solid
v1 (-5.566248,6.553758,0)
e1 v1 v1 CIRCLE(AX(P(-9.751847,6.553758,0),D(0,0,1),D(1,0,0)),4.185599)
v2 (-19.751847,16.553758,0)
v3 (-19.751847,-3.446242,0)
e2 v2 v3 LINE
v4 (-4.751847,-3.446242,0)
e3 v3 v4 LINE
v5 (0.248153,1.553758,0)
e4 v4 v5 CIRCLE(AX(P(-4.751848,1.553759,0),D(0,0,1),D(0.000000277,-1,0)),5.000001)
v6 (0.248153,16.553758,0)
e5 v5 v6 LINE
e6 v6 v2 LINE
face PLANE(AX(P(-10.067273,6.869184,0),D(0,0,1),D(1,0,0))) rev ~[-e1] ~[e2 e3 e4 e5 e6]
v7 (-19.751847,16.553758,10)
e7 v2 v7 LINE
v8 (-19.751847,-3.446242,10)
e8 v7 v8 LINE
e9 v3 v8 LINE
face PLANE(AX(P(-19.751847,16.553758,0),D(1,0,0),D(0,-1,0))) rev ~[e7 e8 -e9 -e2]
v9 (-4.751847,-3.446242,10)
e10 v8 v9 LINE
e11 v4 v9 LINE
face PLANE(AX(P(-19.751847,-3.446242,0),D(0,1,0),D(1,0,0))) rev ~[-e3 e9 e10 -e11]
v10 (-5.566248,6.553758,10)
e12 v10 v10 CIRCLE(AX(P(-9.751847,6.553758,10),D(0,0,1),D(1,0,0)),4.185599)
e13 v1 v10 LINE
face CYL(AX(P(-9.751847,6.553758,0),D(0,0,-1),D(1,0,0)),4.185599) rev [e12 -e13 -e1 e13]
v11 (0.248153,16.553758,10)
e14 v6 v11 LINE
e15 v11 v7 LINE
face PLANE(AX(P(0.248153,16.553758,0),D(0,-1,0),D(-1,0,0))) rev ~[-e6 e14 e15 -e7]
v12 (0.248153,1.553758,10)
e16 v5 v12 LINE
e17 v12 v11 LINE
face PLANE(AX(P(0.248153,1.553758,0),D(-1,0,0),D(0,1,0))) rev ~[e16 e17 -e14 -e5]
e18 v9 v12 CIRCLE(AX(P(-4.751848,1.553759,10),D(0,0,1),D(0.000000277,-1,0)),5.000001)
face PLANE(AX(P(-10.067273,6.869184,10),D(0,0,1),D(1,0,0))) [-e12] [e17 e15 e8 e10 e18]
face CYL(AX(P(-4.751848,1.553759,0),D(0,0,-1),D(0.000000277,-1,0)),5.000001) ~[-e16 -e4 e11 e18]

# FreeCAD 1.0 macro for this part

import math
import FreeCAD as App
import Part
import Sketcher

doc = App.newDocument("Part")
body = doc.addObject("PartDesign::Body", "Body")

sketch1 = doc.addObject("Sketcher::SketchObject", "Sketch")
body.addObject(sketch1)
sketch1.AttachmentSupport = (doc.XY_Plane, [""])
sketch1.MapMode = "FlatFace"
sketch1.addGeometry([
    Part.LineSegment(App.Vector(0.248153, 16.553758, 0), App.Vector(-19.751847, 16.553758, 0)),
    Part.LineSegment(App.Vector(-19.751847, 16.553758, 0), App.Vector(-19.751847, -3.446242, 0)),
    Part.LineSegment(App.Vector(-19.751847, -3.446242, 0), App.Vector(-4.751847, -3.446242, 0)),
    Part.ArcOfCircle(Part.Circle(App.Vector(-4.751848, 1.553759, 0), App.Vector(0, 0, 1), 5.000001), math.radians(-89.999984), math.radians(-0.000016)),
    Part.LineSegment(App.Vector(0.248153, 1.553758, 0), App.Vector(0.248153, 16.553758, 0)),
    Part.Circle(App.Vector(-9.751847, 6.553758, 0), App.Vector(0, 0, 1), 4.185599),
], False)
sketch1.addConstraint([
    Sketcher.Constraint("Coincident", 0, 2, 1, 1),
    Sketcher.Constraint("Coincident", 1, 2, 2, 1),
    Sketcher.Constraint("Tangent", 2, 2, 3, 1),
    Sketcher.Constraint("Tangent", 3, 2, 4, 1),
    Sketcher.Constraint("Coincident", 4, 2, 0, 1),
    Sketcher.Constraint("Horizontal", 0),
    Sketcher.Constraint("Vertical", 1),
    Sketcher.Constraint("Horizontal", 2),
    Sketcher.Constraint("Vertical", 4),
    Sketcher.Constraint("Equal", 0, 1),
    Sketcher.Constraint("Radius", 3, 5.000001),
    Sketcher.Constraint("DistanceX", 0, 2, 0, 1, 20.0),
    Sketcher.Constraint("DistanceX", 5, 3, 3, 3, 4.999999),
    Sketcher.Constraint("DistanceY", 3, 3, 5, 3, 4.999999),
    Sketcher.Constraint("Diameter", 5, 8.371198),
    Sketcher.Constraint("DistanceX", 3, 3, -1, 1, 4.751848),
    Sketcher.Constraint("DistanceY", -1, 1, 3, 3, 1.553759),
])
pad1 = doc.addObject("PartDesign::Pad", "Pad")
body.addObject(pad1)
pad1.Profile = sketch1
pad1.Length = 10

doc.recompute()
